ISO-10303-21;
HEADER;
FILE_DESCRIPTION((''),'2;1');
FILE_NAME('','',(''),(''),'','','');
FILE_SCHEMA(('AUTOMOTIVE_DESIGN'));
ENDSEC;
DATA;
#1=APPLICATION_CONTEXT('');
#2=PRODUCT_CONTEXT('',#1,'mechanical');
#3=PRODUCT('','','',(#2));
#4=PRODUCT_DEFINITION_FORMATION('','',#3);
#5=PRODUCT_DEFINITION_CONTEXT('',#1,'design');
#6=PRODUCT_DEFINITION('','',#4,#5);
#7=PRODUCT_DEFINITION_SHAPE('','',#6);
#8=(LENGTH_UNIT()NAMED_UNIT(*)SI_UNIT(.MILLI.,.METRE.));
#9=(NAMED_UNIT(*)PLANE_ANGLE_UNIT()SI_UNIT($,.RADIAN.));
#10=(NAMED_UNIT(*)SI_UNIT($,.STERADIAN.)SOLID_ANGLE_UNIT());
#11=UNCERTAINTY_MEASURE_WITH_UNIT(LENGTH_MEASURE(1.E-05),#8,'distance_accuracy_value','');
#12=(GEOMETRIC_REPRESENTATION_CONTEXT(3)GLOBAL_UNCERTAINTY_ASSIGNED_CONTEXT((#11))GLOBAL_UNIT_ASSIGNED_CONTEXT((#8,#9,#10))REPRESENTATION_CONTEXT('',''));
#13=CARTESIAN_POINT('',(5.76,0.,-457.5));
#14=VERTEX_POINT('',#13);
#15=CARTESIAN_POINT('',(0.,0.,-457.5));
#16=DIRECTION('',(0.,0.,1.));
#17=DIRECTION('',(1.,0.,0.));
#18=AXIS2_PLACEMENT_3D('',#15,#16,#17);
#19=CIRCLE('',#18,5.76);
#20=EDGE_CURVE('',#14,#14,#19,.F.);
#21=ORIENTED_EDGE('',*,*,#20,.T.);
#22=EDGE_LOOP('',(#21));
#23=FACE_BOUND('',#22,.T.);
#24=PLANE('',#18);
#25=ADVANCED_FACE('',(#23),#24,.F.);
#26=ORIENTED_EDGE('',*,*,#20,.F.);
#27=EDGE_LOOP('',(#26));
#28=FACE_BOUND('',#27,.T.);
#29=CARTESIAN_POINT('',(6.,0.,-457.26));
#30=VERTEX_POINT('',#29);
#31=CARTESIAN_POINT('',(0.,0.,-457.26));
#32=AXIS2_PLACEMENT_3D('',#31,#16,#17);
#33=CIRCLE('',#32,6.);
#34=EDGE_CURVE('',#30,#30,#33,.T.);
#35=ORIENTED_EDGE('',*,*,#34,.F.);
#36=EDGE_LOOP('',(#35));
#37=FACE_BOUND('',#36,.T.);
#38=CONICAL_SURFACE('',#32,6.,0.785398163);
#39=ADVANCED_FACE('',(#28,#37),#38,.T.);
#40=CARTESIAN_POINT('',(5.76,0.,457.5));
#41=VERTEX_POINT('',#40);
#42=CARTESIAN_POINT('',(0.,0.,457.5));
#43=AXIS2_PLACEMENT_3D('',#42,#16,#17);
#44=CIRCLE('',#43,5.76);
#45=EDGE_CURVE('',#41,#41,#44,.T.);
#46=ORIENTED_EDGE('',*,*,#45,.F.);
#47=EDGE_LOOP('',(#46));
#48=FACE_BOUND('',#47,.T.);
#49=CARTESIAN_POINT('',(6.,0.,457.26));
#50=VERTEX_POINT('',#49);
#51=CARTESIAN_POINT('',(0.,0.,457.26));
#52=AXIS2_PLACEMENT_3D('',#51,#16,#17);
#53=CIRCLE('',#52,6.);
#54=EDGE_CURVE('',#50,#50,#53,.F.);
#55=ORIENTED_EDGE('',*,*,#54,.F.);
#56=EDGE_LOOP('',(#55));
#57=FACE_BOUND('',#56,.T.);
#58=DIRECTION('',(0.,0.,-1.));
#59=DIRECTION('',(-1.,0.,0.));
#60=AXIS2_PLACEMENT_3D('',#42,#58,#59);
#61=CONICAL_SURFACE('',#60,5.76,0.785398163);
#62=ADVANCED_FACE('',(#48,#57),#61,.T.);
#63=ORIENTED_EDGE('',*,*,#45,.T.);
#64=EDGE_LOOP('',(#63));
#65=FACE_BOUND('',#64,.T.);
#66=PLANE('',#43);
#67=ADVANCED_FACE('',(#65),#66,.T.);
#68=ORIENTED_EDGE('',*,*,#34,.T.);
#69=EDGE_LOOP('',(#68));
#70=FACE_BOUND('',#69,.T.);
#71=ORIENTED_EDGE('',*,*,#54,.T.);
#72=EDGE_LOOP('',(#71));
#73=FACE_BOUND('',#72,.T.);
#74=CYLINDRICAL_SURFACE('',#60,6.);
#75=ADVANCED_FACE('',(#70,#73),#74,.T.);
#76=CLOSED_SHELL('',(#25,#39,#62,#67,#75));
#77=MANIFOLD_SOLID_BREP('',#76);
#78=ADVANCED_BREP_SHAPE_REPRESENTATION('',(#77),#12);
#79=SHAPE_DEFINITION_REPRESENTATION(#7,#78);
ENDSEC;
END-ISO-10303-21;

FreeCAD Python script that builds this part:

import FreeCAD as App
import Part
import Sketcher
from FreeCAD import Vector


def edges_at(feature, points):
    """Names of the edges that pass closest to the given points."""
    edges = feature.Shape.Edges
    near = lambda p: min(range(len(edges)), key=lambda i: edges[i].distToShape(Part.Vertex(*p))[0])
    return sorted({f"Edge{near(p) + 1}" for p in points})

doc = App.newDocument("Part")
params = doc.addObject("Spreadsheet::Sheet", "Params")
for row, (alias, value) in enumerate([
    ("sketch1_diameter", "12 mm"),
    ("pad1_length", "457.5 mm"),
    ("pad1_length2", "457.5 mm"),
    ("chamfer_size", "0.24 mm"),
], start=1):
    params.set(f"A{row}", alias)
    params.set(f"B{row}", "=" + value)
    params.setAlias(f"B{row}", alias)

body = doc.addObject("PartDesign::Body", "Body")

# Sketch on XY plane
sketch1 = doc.addObject("Sketcher::SketchObject", "Sketch")
body.addObject(sketch1)
sketch1.AttachmentSupport = (doc.XY_Plane, [""])
sketch1.MapMode = "FlatFace"
sketch1.addGeometry(Part.Circle(Vector(0, 0, 0), Vector(0, 0, 1), 6), False)
sketch1.addConstraint([
    Sketcher.Constraint("Coincident", 0, 3, -1, 1),
    Sketcher.Constraint("Diameter", 0, 12.0),
])
sketch1.setExpression("Constraints[1]", "Params.sketch1_diameter")
pad1 = doc.addObject("PartDesign::Pad", "Pad")
body.addObject(pad1)
pad1.Profile = sketch1
pad1.Type = "TwoLengths"
pad1.setExpression("Length", "Params.pad1_length")
pad1.setExpression("Length2", "Params.pad1_length2")
doc.recompute()

chamfer = doc.addObject("PartDesign::Chamfer", "Chamfer")
body.addObject(chamfer)
chamfer.Base = (pad1, edges_at(pad1, [(-6, 0, -457.5), (-6, 0, 457.5)]))
chamfer.setExpression("Size", "Params.chamfer_size")

doc.recompute()
